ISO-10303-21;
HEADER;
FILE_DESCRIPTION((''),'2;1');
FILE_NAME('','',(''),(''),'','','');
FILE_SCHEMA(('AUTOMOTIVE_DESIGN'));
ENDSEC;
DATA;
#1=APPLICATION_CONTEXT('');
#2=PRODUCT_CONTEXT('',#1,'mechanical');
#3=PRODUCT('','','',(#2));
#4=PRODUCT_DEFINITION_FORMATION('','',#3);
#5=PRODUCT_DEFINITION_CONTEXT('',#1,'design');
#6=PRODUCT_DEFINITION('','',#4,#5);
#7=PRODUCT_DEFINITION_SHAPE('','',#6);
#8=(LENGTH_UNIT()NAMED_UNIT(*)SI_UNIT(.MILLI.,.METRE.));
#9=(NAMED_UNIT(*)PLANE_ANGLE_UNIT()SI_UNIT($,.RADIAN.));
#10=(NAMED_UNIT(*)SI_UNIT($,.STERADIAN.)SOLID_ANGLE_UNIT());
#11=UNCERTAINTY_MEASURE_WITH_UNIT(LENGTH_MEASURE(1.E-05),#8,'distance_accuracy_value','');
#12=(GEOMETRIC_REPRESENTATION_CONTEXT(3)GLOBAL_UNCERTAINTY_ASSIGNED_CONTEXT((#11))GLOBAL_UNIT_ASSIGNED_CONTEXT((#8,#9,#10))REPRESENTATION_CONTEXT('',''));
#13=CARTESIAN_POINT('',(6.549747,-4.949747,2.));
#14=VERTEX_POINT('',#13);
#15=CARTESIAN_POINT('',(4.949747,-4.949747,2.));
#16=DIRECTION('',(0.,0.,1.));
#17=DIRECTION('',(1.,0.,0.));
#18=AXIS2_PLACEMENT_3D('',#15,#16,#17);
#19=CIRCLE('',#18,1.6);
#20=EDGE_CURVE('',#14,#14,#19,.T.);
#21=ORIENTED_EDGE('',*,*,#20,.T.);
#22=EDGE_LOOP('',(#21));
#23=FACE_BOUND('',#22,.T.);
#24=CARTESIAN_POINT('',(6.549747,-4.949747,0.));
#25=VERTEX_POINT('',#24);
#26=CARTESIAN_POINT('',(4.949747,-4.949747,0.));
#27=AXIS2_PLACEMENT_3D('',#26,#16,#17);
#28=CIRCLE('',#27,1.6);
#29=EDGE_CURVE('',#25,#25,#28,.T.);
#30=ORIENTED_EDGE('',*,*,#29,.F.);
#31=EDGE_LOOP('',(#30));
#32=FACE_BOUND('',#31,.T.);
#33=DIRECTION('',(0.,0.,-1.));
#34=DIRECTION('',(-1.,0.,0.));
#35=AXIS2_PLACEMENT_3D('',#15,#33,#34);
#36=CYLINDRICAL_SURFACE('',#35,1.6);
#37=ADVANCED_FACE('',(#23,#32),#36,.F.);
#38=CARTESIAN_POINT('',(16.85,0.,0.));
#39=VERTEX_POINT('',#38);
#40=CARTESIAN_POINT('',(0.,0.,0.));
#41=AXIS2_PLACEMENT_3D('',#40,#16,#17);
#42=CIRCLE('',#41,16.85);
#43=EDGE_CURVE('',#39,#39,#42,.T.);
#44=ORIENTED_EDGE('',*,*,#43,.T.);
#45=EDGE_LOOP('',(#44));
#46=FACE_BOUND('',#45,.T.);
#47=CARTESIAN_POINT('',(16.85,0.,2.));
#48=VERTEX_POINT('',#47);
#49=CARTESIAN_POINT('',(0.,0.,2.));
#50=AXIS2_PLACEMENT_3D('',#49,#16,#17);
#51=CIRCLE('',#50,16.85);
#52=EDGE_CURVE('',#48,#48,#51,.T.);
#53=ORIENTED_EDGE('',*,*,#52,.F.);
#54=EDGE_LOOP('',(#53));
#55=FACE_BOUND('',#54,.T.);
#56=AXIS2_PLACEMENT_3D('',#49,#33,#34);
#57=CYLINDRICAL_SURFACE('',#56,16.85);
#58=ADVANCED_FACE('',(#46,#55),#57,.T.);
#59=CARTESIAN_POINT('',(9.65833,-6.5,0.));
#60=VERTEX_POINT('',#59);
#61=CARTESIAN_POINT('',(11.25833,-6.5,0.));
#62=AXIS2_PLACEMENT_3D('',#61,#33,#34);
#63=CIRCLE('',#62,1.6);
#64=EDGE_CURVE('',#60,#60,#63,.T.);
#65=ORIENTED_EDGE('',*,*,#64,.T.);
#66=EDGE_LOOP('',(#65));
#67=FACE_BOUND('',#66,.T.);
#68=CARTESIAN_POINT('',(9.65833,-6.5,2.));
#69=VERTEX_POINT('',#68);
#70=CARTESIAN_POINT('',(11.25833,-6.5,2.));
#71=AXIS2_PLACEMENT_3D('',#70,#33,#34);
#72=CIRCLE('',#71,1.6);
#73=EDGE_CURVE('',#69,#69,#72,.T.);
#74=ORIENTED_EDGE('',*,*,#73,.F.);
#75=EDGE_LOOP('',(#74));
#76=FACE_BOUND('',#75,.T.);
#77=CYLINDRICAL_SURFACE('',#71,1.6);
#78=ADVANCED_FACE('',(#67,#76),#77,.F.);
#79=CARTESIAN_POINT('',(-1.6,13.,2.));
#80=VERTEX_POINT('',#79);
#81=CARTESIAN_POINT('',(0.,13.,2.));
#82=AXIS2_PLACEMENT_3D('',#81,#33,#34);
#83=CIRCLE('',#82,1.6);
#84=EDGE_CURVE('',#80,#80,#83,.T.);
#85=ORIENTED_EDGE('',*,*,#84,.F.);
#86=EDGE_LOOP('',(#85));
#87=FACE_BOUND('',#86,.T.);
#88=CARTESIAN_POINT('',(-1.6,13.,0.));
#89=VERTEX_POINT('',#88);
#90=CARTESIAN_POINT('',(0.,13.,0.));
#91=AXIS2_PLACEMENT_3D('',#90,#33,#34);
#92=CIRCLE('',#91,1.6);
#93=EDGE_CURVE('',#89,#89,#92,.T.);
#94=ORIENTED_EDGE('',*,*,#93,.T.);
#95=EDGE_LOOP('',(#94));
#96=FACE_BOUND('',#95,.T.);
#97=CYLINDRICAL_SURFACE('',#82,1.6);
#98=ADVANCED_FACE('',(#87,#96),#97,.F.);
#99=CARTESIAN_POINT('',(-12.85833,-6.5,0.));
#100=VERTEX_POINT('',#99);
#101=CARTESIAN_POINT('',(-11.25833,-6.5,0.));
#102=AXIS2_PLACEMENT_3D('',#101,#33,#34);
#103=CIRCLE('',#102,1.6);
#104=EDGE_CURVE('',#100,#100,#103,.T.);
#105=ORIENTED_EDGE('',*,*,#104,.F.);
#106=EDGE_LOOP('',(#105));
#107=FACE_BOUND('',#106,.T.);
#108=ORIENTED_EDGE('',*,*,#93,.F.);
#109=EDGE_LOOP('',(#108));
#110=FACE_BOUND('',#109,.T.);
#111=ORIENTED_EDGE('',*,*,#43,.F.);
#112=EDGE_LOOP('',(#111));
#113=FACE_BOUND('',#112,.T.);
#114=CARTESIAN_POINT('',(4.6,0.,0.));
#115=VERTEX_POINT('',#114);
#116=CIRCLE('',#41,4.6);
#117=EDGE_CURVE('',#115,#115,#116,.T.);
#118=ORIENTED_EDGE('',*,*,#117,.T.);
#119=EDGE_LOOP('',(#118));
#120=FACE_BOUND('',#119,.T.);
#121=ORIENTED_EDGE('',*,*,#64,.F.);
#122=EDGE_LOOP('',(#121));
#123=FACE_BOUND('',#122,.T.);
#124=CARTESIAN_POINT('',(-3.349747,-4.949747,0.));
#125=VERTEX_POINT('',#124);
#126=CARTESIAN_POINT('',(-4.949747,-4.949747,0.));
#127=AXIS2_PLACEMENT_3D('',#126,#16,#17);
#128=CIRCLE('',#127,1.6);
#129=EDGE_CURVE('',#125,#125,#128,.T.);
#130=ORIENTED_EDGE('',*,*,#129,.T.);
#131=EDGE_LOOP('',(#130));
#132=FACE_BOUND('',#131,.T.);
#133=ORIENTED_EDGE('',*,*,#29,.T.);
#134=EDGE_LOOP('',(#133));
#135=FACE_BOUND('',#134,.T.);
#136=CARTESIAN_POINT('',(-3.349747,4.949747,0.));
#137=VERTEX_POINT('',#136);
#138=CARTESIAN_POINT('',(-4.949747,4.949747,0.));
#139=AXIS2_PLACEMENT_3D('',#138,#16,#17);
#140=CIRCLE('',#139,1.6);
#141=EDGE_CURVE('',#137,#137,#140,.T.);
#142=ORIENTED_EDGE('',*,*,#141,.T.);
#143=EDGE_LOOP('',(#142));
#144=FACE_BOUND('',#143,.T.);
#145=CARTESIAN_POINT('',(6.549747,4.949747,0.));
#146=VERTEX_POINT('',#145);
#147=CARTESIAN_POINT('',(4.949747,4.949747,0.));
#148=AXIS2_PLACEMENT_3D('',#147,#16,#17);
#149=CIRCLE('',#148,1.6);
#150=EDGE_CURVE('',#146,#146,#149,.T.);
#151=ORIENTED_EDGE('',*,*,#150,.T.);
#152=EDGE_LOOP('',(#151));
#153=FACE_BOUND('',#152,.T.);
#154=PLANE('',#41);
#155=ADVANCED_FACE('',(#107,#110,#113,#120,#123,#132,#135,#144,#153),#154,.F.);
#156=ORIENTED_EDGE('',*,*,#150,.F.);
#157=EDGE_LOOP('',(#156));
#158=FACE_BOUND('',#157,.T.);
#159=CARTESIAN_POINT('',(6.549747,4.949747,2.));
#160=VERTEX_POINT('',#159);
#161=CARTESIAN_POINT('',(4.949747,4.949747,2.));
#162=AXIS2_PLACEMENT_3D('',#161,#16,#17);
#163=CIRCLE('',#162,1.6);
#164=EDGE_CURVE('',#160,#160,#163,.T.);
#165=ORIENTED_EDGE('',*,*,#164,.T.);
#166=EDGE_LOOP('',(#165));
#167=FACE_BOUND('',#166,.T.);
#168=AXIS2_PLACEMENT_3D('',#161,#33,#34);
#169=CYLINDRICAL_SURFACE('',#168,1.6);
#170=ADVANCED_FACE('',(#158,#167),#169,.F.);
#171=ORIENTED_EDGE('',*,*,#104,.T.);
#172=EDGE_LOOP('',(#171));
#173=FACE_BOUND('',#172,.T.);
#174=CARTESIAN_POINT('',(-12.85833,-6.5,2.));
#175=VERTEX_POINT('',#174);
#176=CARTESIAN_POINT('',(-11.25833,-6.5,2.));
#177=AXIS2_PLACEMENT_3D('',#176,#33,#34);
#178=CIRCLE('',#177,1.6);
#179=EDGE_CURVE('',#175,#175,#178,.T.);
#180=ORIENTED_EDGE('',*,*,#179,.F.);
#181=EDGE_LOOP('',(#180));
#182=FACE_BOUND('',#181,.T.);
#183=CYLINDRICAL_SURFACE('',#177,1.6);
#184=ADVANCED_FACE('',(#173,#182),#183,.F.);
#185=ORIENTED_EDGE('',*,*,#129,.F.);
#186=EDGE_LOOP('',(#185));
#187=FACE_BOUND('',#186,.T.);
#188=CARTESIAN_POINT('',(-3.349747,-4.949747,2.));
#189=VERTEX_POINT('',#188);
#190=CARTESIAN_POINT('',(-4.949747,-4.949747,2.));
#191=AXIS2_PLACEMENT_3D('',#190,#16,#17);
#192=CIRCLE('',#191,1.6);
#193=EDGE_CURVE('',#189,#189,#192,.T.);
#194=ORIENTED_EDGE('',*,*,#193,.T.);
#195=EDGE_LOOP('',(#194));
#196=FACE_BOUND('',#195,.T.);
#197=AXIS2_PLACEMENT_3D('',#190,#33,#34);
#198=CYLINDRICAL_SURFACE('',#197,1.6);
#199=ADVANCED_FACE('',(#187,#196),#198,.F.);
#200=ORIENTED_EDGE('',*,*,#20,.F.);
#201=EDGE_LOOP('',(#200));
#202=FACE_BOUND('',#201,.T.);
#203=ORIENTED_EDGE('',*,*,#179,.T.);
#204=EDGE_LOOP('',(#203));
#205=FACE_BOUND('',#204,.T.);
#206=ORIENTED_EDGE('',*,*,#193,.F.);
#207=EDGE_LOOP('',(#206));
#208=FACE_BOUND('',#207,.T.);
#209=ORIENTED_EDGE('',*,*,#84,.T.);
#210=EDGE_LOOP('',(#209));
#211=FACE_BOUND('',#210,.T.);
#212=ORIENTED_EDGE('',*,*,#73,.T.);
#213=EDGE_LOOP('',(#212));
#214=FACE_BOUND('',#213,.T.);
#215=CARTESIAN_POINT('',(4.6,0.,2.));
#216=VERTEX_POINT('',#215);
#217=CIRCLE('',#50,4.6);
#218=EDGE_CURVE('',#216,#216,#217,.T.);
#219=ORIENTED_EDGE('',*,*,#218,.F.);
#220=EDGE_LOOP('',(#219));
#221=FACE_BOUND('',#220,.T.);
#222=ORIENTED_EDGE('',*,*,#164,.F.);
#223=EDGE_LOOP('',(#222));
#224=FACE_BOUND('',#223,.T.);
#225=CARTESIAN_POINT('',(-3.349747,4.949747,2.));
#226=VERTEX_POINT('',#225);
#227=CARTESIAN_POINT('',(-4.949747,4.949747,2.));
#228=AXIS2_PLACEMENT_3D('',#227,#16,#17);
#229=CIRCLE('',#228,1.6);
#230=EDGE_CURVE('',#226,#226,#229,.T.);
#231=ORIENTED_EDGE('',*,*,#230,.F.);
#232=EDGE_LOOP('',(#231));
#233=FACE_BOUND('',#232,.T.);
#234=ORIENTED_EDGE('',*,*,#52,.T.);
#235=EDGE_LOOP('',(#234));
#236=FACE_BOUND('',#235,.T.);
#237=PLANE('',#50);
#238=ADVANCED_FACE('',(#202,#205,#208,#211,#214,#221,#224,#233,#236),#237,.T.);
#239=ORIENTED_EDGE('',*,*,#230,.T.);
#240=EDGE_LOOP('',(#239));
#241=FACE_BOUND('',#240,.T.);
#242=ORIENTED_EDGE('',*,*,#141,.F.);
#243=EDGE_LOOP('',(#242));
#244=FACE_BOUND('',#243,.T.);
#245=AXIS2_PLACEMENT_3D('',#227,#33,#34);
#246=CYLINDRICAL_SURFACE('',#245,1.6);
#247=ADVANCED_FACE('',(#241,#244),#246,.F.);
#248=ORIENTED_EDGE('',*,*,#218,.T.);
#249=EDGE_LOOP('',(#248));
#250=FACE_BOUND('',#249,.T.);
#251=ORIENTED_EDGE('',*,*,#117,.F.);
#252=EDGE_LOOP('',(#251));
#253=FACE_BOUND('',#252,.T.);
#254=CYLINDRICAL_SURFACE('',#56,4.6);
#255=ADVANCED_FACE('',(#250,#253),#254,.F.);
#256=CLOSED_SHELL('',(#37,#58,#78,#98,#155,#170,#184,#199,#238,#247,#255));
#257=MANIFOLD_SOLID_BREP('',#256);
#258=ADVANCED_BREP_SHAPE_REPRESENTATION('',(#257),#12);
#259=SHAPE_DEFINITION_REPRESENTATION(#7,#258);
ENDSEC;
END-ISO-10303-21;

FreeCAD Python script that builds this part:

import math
import FreeCAD as App
import Part
import Sketcher

V = App.Vector

doc = App.newDocument("Part")
params = doc.addObject("Spreadsheet::Sheet", "Params")
for row, (alias, value) in enumerate([
    ("sketch1_diameter", "33.7 mm"),
    ("sketch1_diameter2", "3.2 mm"),
    ("sketch1_diameter3", "9.2 mm"),
    ("pad1_length", "2 mm"),
    ("sketch2_diameter", "3.2 mm"),
], start=1):
    params.set(f"A{row}", alias)
    params.set(f"B{row}", "=" + value)
    params.setAlias(f"B{row}", alias)

body = doc.addObject("PartDesign::Body", "Body")

# Sketch on XY plane
sketch1 = doc.addObject("Sketcher::SketchObject", "Sketch")
body.addObject(sketch1)
sketch1.AttachmentSupport = (doc.XY_Plane, [""])
sketch1.MapMode = "FlatFace"
sketch1.addGeometry([
    Part.Circle(V(0, 0, 0), V(0, 0, 1), 16.85),  # 0
    Part.Circle(V(-4.949747, -4.949747, 0), V(0, 0, 1), 1.6),  # 1
    Part.Circle(V(4.949747, -4.949747, 0), V(0, 0, 1), 1.6),  # 2
    Part.Circle(V(-4.949747, 4.949747, 0), V(0, 0, 1), 1.6),  # 3
    Part.Circle(V(0, 0, 0), V(0, 0, 1), 4.6),  # 4
    Part.Circle(V(4.949747, 4.949747, 0), V(0, 0, 1), 1.6),  # 5
], False)
sketch1.addConstraint([
    Sketcher.Constraint("Coincident", 0, 3, -1, 1),
    Sketcher.Constraint("Coincident", 4, 3, -1, 1),
    Sketcher.Constraint("Equal", 1, 2),
    Sketcher.Constraint("Equal", 2, 3),
    Sketcher.Constraint("Equal", 3, 5),
    Sketcher.Constraint("Symmetric", 2, 3, 3, 3, -1, 1),
    Sketcher.Constraint("Symmetric", 1, 3, 5, 3, -1, 1),
    Sketcher.Constraint("Symmetric", 1, 3, 2, 3, -2),
    Sketcher.Constraint("Diameter", 0, 33.7),
    Sketcher.Constraint("Diameter", 1, 3.2),
    Sketcher.Constraint("Diameter", 4, 9.2),
    Sketcher.Constraint("DistanceX", 1, 3, -1, 1, 4.949747),
    Sketcher.Constraint("DistanceY", 1, 3, -1, 1, 4.949747),
])
sketch1.setExpression("Constraints[8]", "Params.sketch1_diameter")
sketch1.setExpression("Constraints[9]", "Params.sketch1_diameter2")
sketch1.setExpression("Constraints[10]", "Params.sketch1_diameter3")
pad1 = doc.addObject("PartDesign::Pad", "Pad")
body.addObject(pad1)
pad1.Profile = sketch1
pad1.setExpression("Length", "Params.pad1_length")

# Sketch on XY plane
sketch2 = doc.addObject("Sketcher::SketchObject", "Sketch001")
body.addObject(sketch2)
sketch2.AttachmentSupport = (doc.XY_Plane, [""])
sketch2.MapMode = "FlatFace"
sketch2.addGeometry([
    Part.ArcOfCircle(Part.Circle(V(0, 13, 0), V(0, 0, 1), 1.6), math.radians(-90), math.radians(90)),  # 0
    Part.ArcOfCircle(Part.Circle(V(0, 13, 0), V(0, 0, 1), 1.6), math.radians(180), math.radians(270)),  # 1
    Part.ArcOfCircle(Part.Circle(V(0, 13, 0), V(0, 0, 1), 1.6), math.radians(90), math.radians(180)),  # 2
    Part.Circle(V(11.25833, -6.5, 0), V(0, 0, 1), 1.6),  # 3
    Part.Circle(V(-11.25833, -6.5, 0), V(0, 0, 1), 1.6),  # 4
], False)
sketch2.addConstraint([
    Sketcher.Constraint("Tangent", 0, 1, 1, 2),
    Sketcher.Constraint("Tangent", 1, 1, 2, 2),
    Sketcher.Constraint("Tangent", 2, 1, 0, 2),
    Sketcher.Constraint("Equal", 2, 3),
    Sketcher.Constraint("Equal", 3, 4),
    Sketcher.Constraint("Symmetric", 3, 3, 4, 3, -2),
    Sketcher.Constraint("PointOnObject", 0, 3, -2),
    Sketcher.Constraint("PointOnObject", 0, 1, -2),
    Sketcher.Constraint("PointOnObject", 2, 1, -2),
    Sketcher.Constraint("Horizontal", 2, 3, 1, 1),
    Sketcher.Constraint("Diameter", 3, 3.2),
    Sketcher.Constraint("DistanceY", -1, 1, 0, 3, 13.0),
    Sketcher.Constraint("DistanceY", 3, 3, -1, 1, 6.5),
    Sketcher.Constraint("DistanceX", -1, 1, 3, 3, 11.25833),
])
sketch2.setExpression("Constraints[10]", "Params.sketch2_diameter")
pocket1 = doc.addObject("PartDesign::Pocket", "Pocket")
body.addObject(pocket1)
pocket1.Profile = sketch2
pocket1.Type = "ThroughAll"
pocket1.Reversed = True

doc.recompute()
